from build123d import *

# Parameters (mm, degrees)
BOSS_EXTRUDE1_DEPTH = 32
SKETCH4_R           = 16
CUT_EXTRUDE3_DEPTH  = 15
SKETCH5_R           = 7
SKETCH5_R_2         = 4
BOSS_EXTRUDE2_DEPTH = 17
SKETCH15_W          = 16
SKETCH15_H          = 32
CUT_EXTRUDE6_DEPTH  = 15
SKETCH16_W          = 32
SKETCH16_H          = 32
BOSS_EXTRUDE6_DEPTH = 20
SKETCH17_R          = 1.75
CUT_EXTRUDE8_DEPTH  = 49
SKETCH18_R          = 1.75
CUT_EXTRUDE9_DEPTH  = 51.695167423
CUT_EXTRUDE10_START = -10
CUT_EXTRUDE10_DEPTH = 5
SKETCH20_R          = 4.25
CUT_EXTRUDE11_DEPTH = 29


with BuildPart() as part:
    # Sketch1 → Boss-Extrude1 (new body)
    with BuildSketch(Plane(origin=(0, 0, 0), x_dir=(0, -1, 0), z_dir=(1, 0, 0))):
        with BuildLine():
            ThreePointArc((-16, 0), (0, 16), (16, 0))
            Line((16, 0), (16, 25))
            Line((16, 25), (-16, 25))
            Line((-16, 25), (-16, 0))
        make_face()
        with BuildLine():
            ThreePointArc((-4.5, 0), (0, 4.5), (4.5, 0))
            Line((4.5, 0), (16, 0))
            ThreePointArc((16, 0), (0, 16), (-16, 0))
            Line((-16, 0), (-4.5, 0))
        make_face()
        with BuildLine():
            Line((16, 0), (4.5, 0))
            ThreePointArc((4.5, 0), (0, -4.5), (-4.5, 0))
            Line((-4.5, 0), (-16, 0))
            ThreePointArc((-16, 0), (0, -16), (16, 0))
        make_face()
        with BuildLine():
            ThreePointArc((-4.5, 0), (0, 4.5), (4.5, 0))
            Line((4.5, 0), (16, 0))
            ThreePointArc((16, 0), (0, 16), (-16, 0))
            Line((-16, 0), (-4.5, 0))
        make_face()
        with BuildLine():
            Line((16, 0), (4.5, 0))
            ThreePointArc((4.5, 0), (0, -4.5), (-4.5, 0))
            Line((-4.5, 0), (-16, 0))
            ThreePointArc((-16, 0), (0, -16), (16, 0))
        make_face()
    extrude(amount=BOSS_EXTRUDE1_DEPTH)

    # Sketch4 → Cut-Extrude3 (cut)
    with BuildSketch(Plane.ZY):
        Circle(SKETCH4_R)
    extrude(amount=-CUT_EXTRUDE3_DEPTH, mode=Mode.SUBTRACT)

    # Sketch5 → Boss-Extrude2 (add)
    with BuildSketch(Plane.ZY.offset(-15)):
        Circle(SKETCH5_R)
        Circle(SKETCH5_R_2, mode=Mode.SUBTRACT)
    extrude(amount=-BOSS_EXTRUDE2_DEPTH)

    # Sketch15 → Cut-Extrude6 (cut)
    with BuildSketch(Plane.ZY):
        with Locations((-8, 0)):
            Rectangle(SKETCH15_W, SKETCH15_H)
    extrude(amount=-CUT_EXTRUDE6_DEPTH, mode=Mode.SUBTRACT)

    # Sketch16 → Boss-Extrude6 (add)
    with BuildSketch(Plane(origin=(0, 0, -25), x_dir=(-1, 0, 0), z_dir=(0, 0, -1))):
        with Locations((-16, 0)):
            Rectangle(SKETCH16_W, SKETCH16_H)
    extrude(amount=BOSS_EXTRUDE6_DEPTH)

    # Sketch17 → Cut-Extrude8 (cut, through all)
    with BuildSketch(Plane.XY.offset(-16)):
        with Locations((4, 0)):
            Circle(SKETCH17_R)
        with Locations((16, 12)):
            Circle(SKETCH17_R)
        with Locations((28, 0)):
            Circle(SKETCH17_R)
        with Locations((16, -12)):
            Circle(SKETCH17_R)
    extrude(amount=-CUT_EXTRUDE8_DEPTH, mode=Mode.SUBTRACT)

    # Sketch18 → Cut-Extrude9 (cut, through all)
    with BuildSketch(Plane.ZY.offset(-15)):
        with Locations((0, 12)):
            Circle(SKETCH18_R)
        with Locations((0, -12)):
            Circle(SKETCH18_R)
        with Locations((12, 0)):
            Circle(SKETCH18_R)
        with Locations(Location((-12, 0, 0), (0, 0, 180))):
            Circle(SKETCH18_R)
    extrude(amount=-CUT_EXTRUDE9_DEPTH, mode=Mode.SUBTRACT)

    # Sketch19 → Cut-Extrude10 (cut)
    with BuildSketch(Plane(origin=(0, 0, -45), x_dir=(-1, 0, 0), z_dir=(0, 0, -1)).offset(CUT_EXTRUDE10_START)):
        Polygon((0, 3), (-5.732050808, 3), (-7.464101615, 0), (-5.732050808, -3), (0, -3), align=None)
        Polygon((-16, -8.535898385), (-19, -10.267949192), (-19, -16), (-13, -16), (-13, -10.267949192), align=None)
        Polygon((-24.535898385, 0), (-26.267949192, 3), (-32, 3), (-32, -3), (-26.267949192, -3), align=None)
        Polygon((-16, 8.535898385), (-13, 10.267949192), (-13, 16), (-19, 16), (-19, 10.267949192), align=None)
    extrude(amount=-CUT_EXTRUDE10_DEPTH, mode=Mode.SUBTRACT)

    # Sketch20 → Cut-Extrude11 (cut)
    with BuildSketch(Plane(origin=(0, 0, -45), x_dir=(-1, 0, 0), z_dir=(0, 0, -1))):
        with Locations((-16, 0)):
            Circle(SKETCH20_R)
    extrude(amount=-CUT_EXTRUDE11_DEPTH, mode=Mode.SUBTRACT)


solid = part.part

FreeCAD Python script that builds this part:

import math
import FreeCAD as App
import Part
import Sketcher
from FreeCAD import Vector
Q = App.Units.Quantity


def add_polygon(sketch, points):
    """Adds a closed chain of lines whose ends are joined by coincident constraints."""
    first, n = sketch.GeometryCount, len(points)
    for a, b in zip(points, points[1:] + points[:1]):
        sketch.addGeometry(Part.LineSegment(App.Vector(*a, 0), App.Vector(*b, 0)), False)
    for i in range(n):
        sketch.addConstraint(Sketcher.Constraint("Coincident", first + i, 2, first + (i + 1) % n, 1))

doc = App.newDocument("Part")
body = doc.addObject("PartDesign::Body", "Body")

sketch1 = doc.addObject("Sketcher::SketchObject", "Sketch")
body.addObject(sketch1)
sketch1.AttachmentSupport = (doc.YZ_Plane, [""])
sketch1.MapMode = "FlatFace"
sketch1.addGeometry([
    Part.LineSegment(Vector(-16, -25, 0), Vector(16, -25, 0)),
    Part.LineSegment(Vector(16, -25, 0), Vector(16, 0, 0)),
    Part.ArcOfCircle(Part.Circle(Vector(0, 0, 0), Vector(0, 0, 1), 16), math.radians(0), math.radians(180)),
    Part.LineSegment(Vector(-16, 0, 0), Vector(-16, -25, 0)),
    Part.Circle(Vector(0, 0, 0), Vector(0, 0, 1), 4.5),
], False)
sketch1.addConstraint([
    Sketcher.Constraint("Coincident", 0, 2, 1, 1),
    Sketcher.Constraint("Tangent", 1, 2, 2, 1),
    Sketcher.Constraint("Tangent", 2, 2, 3, 1),
    Sketcher.Constraint("Coincident", 3, 2, 0, 1),
    Sketcher.Constraint("Horizontal", 0),
    Sketcher.Constraint("Vertical", 1),
    Sketcher.Constraint("Vertical", 3),
    Sketcher.Constraint("Coincident", 2, 3, -1, 1),
    Sketcher.Constraint("Coincident", 4, 3, -1, 1),
    Sketcher.Constraint("Diameter", 4, Q("9 mm")),
    Sketcher.Constraint("Radius", 2, Q("16 mm")),
    Sketcher.Constraint("DistanceY", 1, 1, 1, 2, Q("25 mm")),
])
pad1 = doc.addObject("PartDesign::Pad", "Pad")
body.addObject(pad1)
pad1.Profile = sketch1
pad1.Length = 32

sketch2 = doc.addObject("Sketcher::SketchObject", "Sketch001")
body.addObject(sketch2)
sketch2.AttachmentSupport = (doc.YZ_Plane, [""])
sketch2.MapMode = "FlatFace"
sketch2.addGeometry(Part.Circle(Vector(0, 0, 0), Vector(0, 0, 1), 16), False)
sketch2.addConstraint([
    Sketcher.Constraint("Coincident", 0, 3, -1, 1),
    Sketcher.Constraint("Diameter", 0, Q("32 mm")),
])
pocket1 = doc.addObject("PartDesign::Pocket", "Pocket")
body.addObject(pocket1)
pocket1.Profile = sketch2
pocket1.Length = 15
pocket1.Reversed = True

sketch3 = doc.addObject("Sketcher::SketchObject", "Sketch002")
body.addObject(sketch3)
sketch3.AttachmentSupport = (doc.YZ_Plane, [""])
sketch3.MapMode = "FlatFace"
sketch3.AttachmentOffset = App.Placement(Vector(0, 0, 15), App.Rotation())
sketch3.addGeometry([
    Part.Circle(Vector(0, 0, 0), Vector(0, 0, 1), 7),
    Part.Circle(Vector(0, 0, 0), Vector(0, 0, 1), 4),
], False)
sketch3.addConstraint([
    Sketcher.Constraint("Coincident", 0, 3, -1, 1),
    Sketcher.Constraint("Coincident", 1, 3, -1, 1),
    Sketcher.Constraint("Diameter", 0, Q("14 mm")),
    Sketcher.Constraint("Diameter", 1, Q("8 mm")),
])
pad2 = doc.addObject("PartDesign::Pad", "Pad001")
body.addObject(pad2)
pad2.Profile = sketch3
pad2.Length = 17

sketch4 = doc.addObject("Sketcher::SketchObject", "Sketch003")
body.addObject(sketch4)
sketch4.AttachmentSupport = (doc.YZ_Plane, [""])
sketch4.MapMode = "FlatFace"
add_polygon(sketch4, [(16, -16), (-16, -16), (-16, 0), (16, 0)])
sketch4.addConstraint([
    Sketcher.Constraint("Horizontal", 0),
    Sketcher.Constraint("Vertical", 1),
    Sketcher.Constraint("Horizontal", 2),
    Sketcher.Constraint("Vertical", 3),
    Sketcher.Constraint("Symmetric", 1, 2, 2, 2, -1, 1),
    Sketcher.Constraint("DistanceX", 0, 2, 0, 1, Q("32 mm")),
    Sketcher.Constraint("DistanceY", 1, 1, 1, 2, Q("16 mm")),
])
pocket2 = doc.addObject("PartDesign::Pocket", "Pocket001")
body.addObject(pocket2)
pocket2.Profile = sketch4
pocket2.Length = 15
pocket2.Reversed = True

sketch5 = doc.addObject("Sketcher::SketchObject", "Sketch004")
body.addObject(sketch5)
sketch5.AttachmentSupport = (doc.XY_Plane, [""])
sketch5.MapMode = "FlatFace"
sketch5.AttachmentOffset = App.Placement(Vector(0, 0, -25), App.Rotation())
add_polygon(sketch5, [(32, 16), (32, -16), (0, -16), (0, 16)])
sketch5.addConstraint([
    Sketcher.Constraint("Vertical", 0),
    Sketcher.Constraint("Horizontal", 1),
    Sketcher.Constraint("Vertical", 2),
    Sketcher.Constraint("Horizontal", 3),
    Sketcher.Constraint("Symmetric", 1, 2, 2, 2, -1, 1),
    Sketcher.Constraint("Equal", 3, 0),
    Sketcher.Constraint("DistanceX", 1, 2, 1, 1, Q("32 mm")),
])
pad3 = doc.addObject("PartDesign::Pad", "Pad002")
body.addObject(pad3)
pad3.Profile = sketch5
pad3.Length = 20
pad3.Reversed = True

sketch6 = doc.addObject("Sketcher::SketchObject", "Sketch005")
body.addObject(sketch6)
sketch6.AttachmentSupport = (doc.XY_Plane, [""])
sketch6.MapMode = "FlatFace"
sketch6.AttachmentOffset = App.Placement(Vector(0, 0, -16), App.Rotation())
sketch6.addGeometry([
    Part.Circle(Vector(4, 0, 0), Vector(0, 0, 1), 1.75),
    Part.Circle(Vector(16, 12, 0), Vector(0, 0, 1), 1.75),
    Part.Circle(Vector(28, 0, 0), Vector(0, 0, 1), 1.75),
    Part.Circle(Vector(16, -12, 0), Vector(0, 0, 1), 1.75),
], False)
sketch6.addConstraint([
    Sketcher.Constraint("Equal", 0, 1),
    Sketcher.Constraint("Equal", 1, 2),
    Sketcher.Constraint("Equal", 2, 3),
    Sketcher.Constraint("Symmetric", 1, 3, 3, 3, -1),
    Sketcher.Constraint("PointOnObject", 0, 3, -1),
    Sketcher.Constraint("PointOnObject", 2, 3, -1),
    Sketcher.Constraint("Diameter", 0, Q("3.5 mm")),
    Sketcher.Constraint("DistanceX", -1, 1, 0, 3, Q("4 mm")),
    Sketcher.Constraint("DistanceX", -1, 1, 1, 3, Q("16 mm")),
    Sketcher.Constraint("DistanceY", -1, 1, 1, 3, Q("12 mm")),
    Sketcher.Constraint("DistanceX", -1, 1, 2, 3, Q("28 mm")),
])
pocket3 = doc.addObject("PartDesign::Pocket", "Pocket002")
body.addObject(pocket3)
pocket3.Profile = sketch6
pocket3.Type = "ThroughAll"

sketch7 = doc.addObject("Sketcher::SketchObject", "Sketch006")
body.addObject(sketch7)
sketch7.AttachmentSupport = (doc.YZ_Plane, [""])
sketch7.MapMode = "FlatFace"
sketch7.AttachmentOffset = App.Placement(Vector(0, 0, 15), App.Rotation())
sketch7.addGeometry([
    Part.Circle(Vector(12, 0, 0), Vector(0, 0, 1), 1.75),
    Part.Circle(Vector(-12, 0, 0), Vector(0, 0, 1), 1.75),
    Part.Circle(Vector(0, 12, 0), Vector(0, 0, 1), 1.75),
    Part.Circle(Vector(0, -12, 0), Vector(0, 0, 1), 1.75),
], False)
sketch7.addConstraint([
    Sketcher.Constraint("Equal", 0, 1),
    Sketcher.Constraint("Equal", 1, 2),
    Sketcher.Constraint("Equal", 2, 3),
    Sketcher.Constraint("Symmetric", 0, 3, 1, 3, -1, 1),
    Sketcher.Constraint("Symmetric", 2, 3, 3, 3, -1, 1),
    Sketcher.Constraint("PointOnObject", 0, 3, -1),
    Sketcher.Constraint("PointOnObject", 2, 3, -2),
    Sketcher.Constraint("Diameter", 0, Q("3.5 mm")),
    Sketcher.Constraint("DistanceX", -1, 1, 0, 3, Q("12 mm")),
    Sketcher.Constraint("DistanceY", -1, 1, 2, 3, Q("12 mm")),
])
pocket4 = doc.addObject("PartDesign::Pocket", "Pocket003")
body.addObject(pocket4)
pocket4.Profile = sketch7
pocket4.Type = "ThroughAll"
pocket4.Reversed = True

sketch8 = doc.addObject("Sketcher::SketchObject", "Sketch007")
body.addObject(sketch8)
sketch8.AttachmentSupport = (doc.XY_Plane, [""])
sketch8.MapMode = "FlatFace"
sketch8.AttachmentOffset = App.Placement(Vector(0, 0, -35), App.Rotation())
add_polygon(sketch8, [(0, 3), (5.732051, 3), (7.464102, 0), (5.732051, -3), (0, -3)])
add_polygon(sketch8, [(16, -8.535898), (19, -10.267949), (19, -16), (13, -16), (13, -10.267949)])
add_polygon(sketch8, [(24.535898, 0), (26.267949, 3), (32, 3), (32, -3), (26.267949, -3)])
add_polygon(sketch8, [(16, 8.535898), (13, 10.267949), (13, 16), (19, 16), (19, 10.267949)])
sketch8.addConstraint([
    Sketcher.Constraint("Horizontal", 0),
    Sketcher.Constraint("Horizontal", 3),
    Sketcher.Constraint("Vertical", 4),
    Sketcher.Constraint("Vertical", 6),
    Sketcher.Constraint("Horizontal", 7),
    Sketcher.Constraint("Vertical", 8),
    Sketcher.Constraint("Horizontal", 11),
    Sketcher.Constraint("Vertical", 12),
    Sketcher.Constraint("Horizontal", 13),
    Sketcher.Constraint("Vertical", 16),
    Sketcher.Constraint("Horizontal", 17),
    Sketcher.Constraint("Vertical", 18),
    Sketcher.Constraint("Symmetric", 3, 2, 4, 2, -1, 1),
    Sketcher.Constraint("Symmetric", 10, 2, 13, 2, -1),
    Sketcher.Constraint("Symmetric", 8, 2, 15, 2, -1),
    Sketcher.Constraint("Symmetric", 6, 2, 17, 2, -1),
    Sketcher.Constraint("Symmetric", 9, 2, 19, 2, -1),
    Sketcher.Constraint("PointOnObject", 1, 2, -1),
    Sketcher.Constraint("PointOnObject", 14, 2, -1),
    Sketcher.Constraint("Perpendicular", 2, 5),
    Sketcher.Constraint("Perpendicular", 1, 9),
    Sketcher.Constraint("Perpendicular", 5, 10),
    Sketcher.Constraint("Perpendicular", 9, 14),
    Sketcher.Constraint("Perpendicular", 14, 19),
    Sketcher.Constraint("Horizontal", 5, 2, 8, 2),
    Sketcher.Constraint("Horizontal", 4, 2, 10, 2),
    Sketcher.Constraint("Equal", 3, 11),
    Sketcher.Constraint("Equal", 17, 4),
    Sketcher.Constraint("Equal", 13, 6),
    Sketcher.Constraint("DistanceX", 7, 2, 7, 1, Q("6 mm")),
    Sketcher.Constraint("Angle", 1, Q("-60 deg")),
    Sketcher.Constraint("DistanceX", -1, 1, 5, 2, Q("19 mm")),
    Sketcher.Constraint("DistanceY", 6, 2, -1, 1, Q("16 mm")),
    Sketcher.Constraint("DistanceX", -1, 1, 11, 2, Q("32 mm")),
    Sketcher.Constraint("DistanceX", 0, 1, 0, 2, Q("5.732051 mm")),
])
pocket5 = doc.addObject("PartDesign::Pocket", "Pocket004")
body.addObject(pocket5)
pocket5.Profile = sketch8
pocket5.Length = 5
pocket5.Reversed = True

sketch9 = doc.addObject("Sketcher::SketchObject", "Sketch008")
body.addObject(sketch9)
sketch9.AttachmentSupport = (doc.XY_Plane, [""])
sketch9.MapMode = "FlatFace"
sketch9.AttachmentOffset = App.Placement(Vector(0, 0, -45), App.Rotation())
sketch9.addGeometry(Part.Circle(Vector(16, 0, 0), Vector(0, 0, 1), 4.25), False)
sketch9.addConstraint([
    Sketcher.Constraint("PointOnObject", 0, 3, -1),
    Sketcher.Constraint("Diameter", 0, Q("8.5 mm")),
    Sketcher.Constraint("DistanceX", -1, 1, 0, 3, Q("16 mm")),
])
pocket6 = doc.addObject("PartDesign::Pocket", "Pocket005")
body.addObject(pocket6)
pocket6.Profile = sketch9
pocket6.Length = 29
pocket6.Reversed = True

doc.recompute()
